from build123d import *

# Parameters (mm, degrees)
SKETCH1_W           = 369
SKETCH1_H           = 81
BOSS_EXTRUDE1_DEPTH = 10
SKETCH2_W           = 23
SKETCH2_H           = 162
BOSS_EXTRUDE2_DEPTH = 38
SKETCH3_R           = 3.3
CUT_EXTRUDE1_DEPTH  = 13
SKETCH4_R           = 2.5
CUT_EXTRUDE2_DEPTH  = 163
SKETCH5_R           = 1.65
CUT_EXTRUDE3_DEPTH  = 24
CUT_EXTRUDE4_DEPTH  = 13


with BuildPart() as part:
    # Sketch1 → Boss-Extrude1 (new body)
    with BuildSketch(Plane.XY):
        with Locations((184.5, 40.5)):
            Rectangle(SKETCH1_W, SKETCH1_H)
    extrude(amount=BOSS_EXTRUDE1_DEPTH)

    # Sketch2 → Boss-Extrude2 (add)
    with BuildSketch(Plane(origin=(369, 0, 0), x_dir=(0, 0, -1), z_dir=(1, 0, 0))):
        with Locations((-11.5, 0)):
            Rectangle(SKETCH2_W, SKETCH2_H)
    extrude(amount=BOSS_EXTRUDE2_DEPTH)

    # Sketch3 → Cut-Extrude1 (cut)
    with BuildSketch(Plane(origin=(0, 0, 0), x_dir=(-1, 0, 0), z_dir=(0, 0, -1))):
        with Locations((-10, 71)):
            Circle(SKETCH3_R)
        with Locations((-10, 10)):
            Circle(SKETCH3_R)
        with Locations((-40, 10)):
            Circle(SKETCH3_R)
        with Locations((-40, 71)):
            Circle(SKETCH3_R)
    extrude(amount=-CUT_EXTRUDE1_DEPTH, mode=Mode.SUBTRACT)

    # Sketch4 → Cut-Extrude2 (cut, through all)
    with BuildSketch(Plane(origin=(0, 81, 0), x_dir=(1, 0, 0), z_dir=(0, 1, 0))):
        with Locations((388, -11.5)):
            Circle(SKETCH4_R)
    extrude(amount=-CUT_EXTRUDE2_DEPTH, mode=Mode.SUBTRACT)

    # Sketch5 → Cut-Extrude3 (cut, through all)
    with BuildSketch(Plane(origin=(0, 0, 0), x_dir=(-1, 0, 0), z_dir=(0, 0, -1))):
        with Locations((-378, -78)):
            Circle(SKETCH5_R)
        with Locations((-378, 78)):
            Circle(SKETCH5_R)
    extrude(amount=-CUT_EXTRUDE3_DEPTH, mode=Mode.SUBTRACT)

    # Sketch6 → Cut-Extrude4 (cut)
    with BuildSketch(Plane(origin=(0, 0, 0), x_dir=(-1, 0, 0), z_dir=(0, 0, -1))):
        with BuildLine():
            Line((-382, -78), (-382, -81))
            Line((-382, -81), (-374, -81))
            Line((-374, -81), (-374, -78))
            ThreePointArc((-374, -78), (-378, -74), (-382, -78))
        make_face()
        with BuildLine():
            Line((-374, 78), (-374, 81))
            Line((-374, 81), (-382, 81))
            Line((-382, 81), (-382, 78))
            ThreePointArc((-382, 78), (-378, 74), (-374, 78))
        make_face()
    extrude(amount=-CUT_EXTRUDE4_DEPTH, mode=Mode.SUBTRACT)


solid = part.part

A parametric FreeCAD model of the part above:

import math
import FreeCAD as App
import Part
import Sketcher
from FreeCAD import Vector

doc = App.newDocument("Part")
body = doc.addObject("PartDesign::Body", "Body")

# Sketch on XY plane
sketch1 = body.newObject("Sketcher::SketchObject", "Sketch")
sketch1.AttachmentSupport = (doc.getObject("XY_Plane"), [""])
sketch1.MapMode = "FlatFace"
sketch1.addGeometry(Part.LineSegment(Vector(0, 81, 0), Vector(0, 0, 0)), False)
sketch1.addGeometry(Part.LineSegment(Vector(0, 0, 0), Vector(369, 0, 0)), False)
sketch1.addGeometry(Part.LineSegment(Vector(369, 0, 0), Vector(369, 81, 0)), False)
sketch1.addGeometry(Part.LineSegment(Vector(369, 81, 0), Vector(0, 81, 0)), False)
sketch1.addConstraint(Sketcher.Constraint("Coincident", 0, 2, 1, 1))
sketch1.addConstraint(Sketcher.Constraint("Coincident", 1, 2, 2, 1))
sketch1.addConstraint(Sketcher.Constraint("Coincident", 2, 2, 3, 1))
sketch1.addConstraint(Sketcher.Constraint("Coincident", 3, 2, 0, 1))
sketch1.addConstraint(Sketcher.Constraint("Vertical", 0))
sketch1.addConstraint(Sketcher.Constraint("Horizontal", 1))
sketch1.addConstraint(Sketcher.Constraint("Vertical", 2))
sketch1.addConstraint(Sketcher.Constraint("Horizontal", 3))
sketch1.addConstraint(Sketcher.Constraint("Coincident", 0, 2, -1, 1))
sketch1.addConstraint(Sketcher.Constraint("DistanceX", 1, 1, 1, 2, 369.0))
sketch1.addConstraint(Sketcher.Constraint("DistanceY", 0, 2, 0, 1, 81.0))
pad1 = body.newObject("PartDesign::Pad", "Pad")
pad1.Profile = sketch1
pad1.Length = 10

# Sketch on YZ plane
sketch2 = body.newObject("Sketcher::SketchObject", "Sketch001")
sketch2.AttachmentSupport = (doc.getObject("YZ_Plane"), [""])
sketch2.MapMode = "FlatFace"
sketch2.AttachmentOffset = App.Placement(Vector(0, 0, 369), App.Rotation())
sketch2.addGeometry(Part.LineSegment(Vector(81, 23, 0), Vector(-81, 23, 0)), False)
sketch2.addGeometry(Part.LineSegment(Vector(-81, 23, 0), Vector(-81, 0, 0)), False)
sketch2.addGeometry(Part.LineSegment(Vector(-81, 0, 0), Vector(81, 0, 0)), False)
sketch2.addGeometry(Part.LineSegment(Vector(81, 0, 0), Vector(81, 23, 0)), False)
sketch2.addConstraint(Sketcher.Constraint("Coincident", 0, 2, 1, 1))
sketch2.addConstraint(Sketcher.Constraint("Coincident", 1, 2, 2, 1))
sketch2.addConstraint(Sketcher.Constraint("Coincident", 2, 2, 3, 1))
sketch2.addConstraint(Sketcher.Constraint("Coincident", 3, 2, 0, 1))
sketch2.addConstraint(Sketcher.Constraint("Horizontal", 0))
sketch2.addConstraint(Sketcher.Constraint("Vertical", 1))
sketch2.addConstraint(Sketcher.Constraint("Horizontal", 2))
sketch2.addConstraint(Sketcher.Constraint("Vertical", 3))
sketch2.addConstraint(Sketcher.Constraint("Symmetric", 1, 2, 2, 2, -1, 1))
sketch2.addConstraint(Sketcher.Constraint("DistanceX", 0, 2, 0, 1, 162.0))
sketch2.addConstraint(Sketcher.Constraint("DistanceY", 1, 2, 1, 1, 23.0))
pad2 = body.newObject("PartDesign::Pad", "Pad001")
pad2.Profile = sketch2
pad2.Length = 38

# Sketch on XY plane
sketch3 = body.newObject("Sketcher::SketchObject", "Sketch002")
sketch3.AttachmentSupport = (doc.getObject("XY_Plane"), [""])
sketch3.MapMode = "FlatFace"
sketch3.addGeometry(Part.Circle(Vector(10, 71, 0), Vector(0, 0, 1), 3.3), False)
sketch3.addGeometry(Part.Circle(Vector(10, 10, 0), Vector(0, 0, 1), 3.3), False)
sketch3.addGeometry(Part.Circle(Vector(40, 10, 0), Vector(0, 0, 1), 3.3), False)
sketch3.addGeometry(Part.Circle(Vector(40, 71, 0), Vector(0, 0, 1), 3.3), False)
sketch3.addConstraint(Sketcher.Constraint("Equal", 0, 1))
sketch3.addConstraint(Sketcher.Constraint("Equal", 1, 2))
sketch3.addConstraint(Sketcher.Constraint("Equal", 2, 3))
sketch3.addConstraint(Sketcher.Constraint("Horizontal", 1, 3, 2, 3))
sketch3.addConstraint(Sketcher.Constraint("Horizontal", 0, 3, 3, 3))
sketch3.addConstraint(Sketcher.Constraint("Vertical", 0, 3, 1, 3))
sketch3.addConstraint(Sketcher.Constraint("Vertical", 2, 3, 3, 3))
sketch3.addConstraint(Sketcher.Constraint("Diameter", 0, 6.6))
sketch3.addConstraint(Sketcher.Constraint("DistanceX", -1, 1, 0, 3, 10.0))
sketch3.addConstraint(Sketcher.Constraint("DistanceY", -1, 1, 0, 3, 71.0))
sketch3.addConstraint(Sketcher.Constraint("DistanceY", -1, 1, 1, 3, 10.0))
sketch3.addConstraint(Sketcher.Constraint("DistanceX", -1, 1, 2, 3, 40.0))
pocket1 = body.newObject("PartDesign::Pocket", "Pocket")
pocket1.Profile = sketch3
pocket1.Length = 13
pocket1.Reversed = True

# Sketch on XZ plane
sketch4 = body.newObject("Sketcher::SketchObject", "Sketch003")
sketch4.AttachmentSupport = (doc.getObject("XZ_Plane"), [""])
sketch4.MapMode = "FlatFace"
sketch4.AttachmentOffset = App.Placement(Vector(0, 0, -81), App.Rotation())
sketch4.addGeometry(Part.Circle(Vector(388, 11.5, 0), Vector(0, 0, 1), 2.5), False)
sketch4.addConstraint(Sketcher.Constraint("Diameter", 0, 5.0))
sketch4.addConstraint(Sketcher.Constraint("DistanceX", -1, 1, 0, 3, 388.0))
sketch4.addConstraint(Sketcher.Constraint("DistanceY", -1, 1, 0, 3, 11.5))
pocket2 = body.newObject("PartDesign::Pocket", "Pocket001")
pocket2.Profile = sketch4
pocket2.Type = "ThroughAll"
pocket2.Reversed = True

# Sketch on XY plane
sketch5 = body.newObject("Sketcher::SketchObject", "Sketch004")
sketch5.AttachmentSupport = (doc.getObject("XY_Plane"), [""])
sketch5.MapMode = "FlatFace"
sketch5.addGeometry(Part.Circle(Vector(378, -78, 0), Vector(0, 0, 1), 1.6), False)
sketch5.addGeometry(Part.Circle(Vector(378, 78, 0), Vector(0, 0, 1), 1.6), False)
sketch5.addConstraint(Sketcher.Constraint("Equal", 0, 1))
sketch5.addConstraint(Sketcher.Constraint("Symmetric", 0, 3, 1, 3, -1))
sketch5.addConstraint(Sketcher.Constraint("Diameter", 0, 3.3))
sketch5.addConstraint(Sketcher.Constraint("DistanceX", -1, 1, 0, 3, 378.0))
sketch5.addConstraint(Sketcher.Constraint("DistanceY", 0, 3, -1, 1, 78.0))
pocket3 = body.newObject("PartDesign::Pocket", "Pocket002")
pocket3.Profile = sketch5
pocket3.Type = "ThroughAll"
pocket3.Reversed = True

# Sketch on XY plane
sketch6 = body.newObject("Sketcher::SketchObject", "Sketch005")
sketch6.AttachmentSupport = (doc.getObject("XY_Plane"), [""])
sketch6.MapMode = "FlatFace"
sketch6.addGeometry(Part.LineSegment(Vector(382, -78, 0), Vector(382, -81, 0)), False)
sketch6.addGeometry(Part.LineSegment(Vector(382, -81, 0), Vector(374, -81, 0)), False)
sketch6.addGeometry(Part.LineSegment(Vector(374, -81, 0), Vector(374, -78, 0)), False)
sketch6.addGeometry(Part.ArcOfCircle(Part.Circle(Vector(378, -78, 0), Vector(0, 0, 1), 4), math.radians(0), math.radians(180)), False)
sketch6.addGeometry(Part.LineSegment(Vector(374, 78, 0), Vector(374, 81, 0)), False)
sketch6.addGeometry(Part.LineSegment(Vector(374, 81, 0), Vector(382, 81, 0)), False)
sketch6.addGeometry(Part.LineSegment(Vector(382, 81, 0), Vector(382, 78, 0)), False)
sketch6.addGeometry(Part.ArcOfCircle(Part.Circle(Vector(378, 78, 0), Vector(0, 0, 1), 4), math.radians(180), math.radians(360)), False)
sketch6.addConstraint(Sketcher.Constraint("Coincident", 0, 2, 1, 1))
sketch6.addConstraint(Sketcher.Constraint("Coincident", 1, 2, 2, 1))
sketch6.addConstraint(Sketcher.Constraint("Tangent", 2, 2, 3, 2))
sketch6.addConstraint(Sketcher.Constraint("Tangent", 3, 1, 0, 1))
sketch6.addConstraint(Sketcher.Constraint("Coincident", 4, 2, 5, 1))
sketch6.addConstraint(Sketcher.Constraint("Coincident", 5, 2, 6, 1))
sketch6.addConstraint(Sketcher.Constraint("Tangent", 6, 2, 7, 2))
sketch6.addConstraint(Sketcher.Constraint("Tangent", 7, 1, 4, 1))
sketch6.addConstraint(Sketcher.Constraint("Vertical", 0))
sketch6.addConstraint(Sketcher.Constraint("Horizontal", 1))
sketch6.addConstraint(Sketcher.Constraint("Vertical", 2))
sketch6.addConstraint(Sketcher.Constraint("Vertical", 4))
sketch6.addConstraint(Sketcher.Constraint("Horizontal", 5))
sketch6.addConstraint(Sketcher.Constraint("Vertical", 6))
sketch6.addConstraint(Sketcher.Constraint("Equal", 3, 7))
sketch6.addConstraint(Sketcher.Constraint("Symmetric", 3, 3, 7, 3, -1))
sketch6.addConstraint(Sketcher.Constraint("Equal", 2, 4))
sketch6.addConstraint(Sketcher.Constraint("Radius", 3, 4.0))
sketch6.addConstraint(Sketcher.Constraint("DistanceY", 0, 2, 0, 1, 3.0))
sketch6.addConstraint(Sketcher.Constraint("DistanceX", -1, 1, 3, 3, 378.0))
sketch6.addConstraint(Sketcher.Constraint("DistanceY", 3, 3, -1, 1, 78.0))
pocket4 = body.newObject("PartDesign::Pocket", "Pocket003")
pocket4.Profile = sketch6
pocket4.Length = 13
pocket4.Reversed = True

doc.recompute()
